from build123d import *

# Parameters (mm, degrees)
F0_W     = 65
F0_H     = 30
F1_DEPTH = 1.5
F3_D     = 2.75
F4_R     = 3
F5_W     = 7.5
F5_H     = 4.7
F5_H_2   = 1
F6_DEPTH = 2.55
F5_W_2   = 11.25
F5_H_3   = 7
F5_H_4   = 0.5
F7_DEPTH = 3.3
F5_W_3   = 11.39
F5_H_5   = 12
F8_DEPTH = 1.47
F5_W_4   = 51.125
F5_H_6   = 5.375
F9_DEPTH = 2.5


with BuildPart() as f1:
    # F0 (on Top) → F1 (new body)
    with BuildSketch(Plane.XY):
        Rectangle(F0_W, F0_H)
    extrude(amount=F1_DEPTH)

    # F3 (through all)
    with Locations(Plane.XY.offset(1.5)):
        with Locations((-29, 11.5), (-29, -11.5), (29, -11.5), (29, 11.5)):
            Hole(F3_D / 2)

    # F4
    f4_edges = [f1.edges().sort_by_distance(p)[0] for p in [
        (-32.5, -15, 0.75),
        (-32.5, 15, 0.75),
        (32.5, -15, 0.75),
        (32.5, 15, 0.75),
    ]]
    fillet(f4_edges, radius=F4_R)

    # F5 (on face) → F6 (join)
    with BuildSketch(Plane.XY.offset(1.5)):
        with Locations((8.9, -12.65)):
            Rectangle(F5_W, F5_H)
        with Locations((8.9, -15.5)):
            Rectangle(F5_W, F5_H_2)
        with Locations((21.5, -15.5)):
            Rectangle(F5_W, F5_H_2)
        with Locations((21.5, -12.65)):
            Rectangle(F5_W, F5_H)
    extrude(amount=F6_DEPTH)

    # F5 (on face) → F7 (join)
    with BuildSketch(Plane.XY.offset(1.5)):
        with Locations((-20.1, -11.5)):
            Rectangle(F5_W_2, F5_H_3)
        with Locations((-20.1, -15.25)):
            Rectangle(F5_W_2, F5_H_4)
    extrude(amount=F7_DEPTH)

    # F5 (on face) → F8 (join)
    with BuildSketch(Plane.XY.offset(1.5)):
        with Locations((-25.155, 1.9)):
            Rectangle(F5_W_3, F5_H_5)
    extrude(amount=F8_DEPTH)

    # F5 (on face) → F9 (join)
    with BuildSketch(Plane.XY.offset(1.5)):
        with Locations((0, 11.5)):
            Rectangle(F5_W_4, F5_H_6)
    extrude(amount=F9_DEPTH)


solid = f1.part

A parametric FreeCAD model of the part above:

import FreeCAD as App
import Part
import Sketcher


def edges_at(feature, points):
    """Names of the edges that pass closest to the given points."""
    edges = feature.Shape.Edges
    near = lambda p: min(range(len(edges)), key=lambda i: edges[i].distToShape(Part.Vertex(*p))[0])
    return sorted({f"Edge{near(p) + 1}" for p in points})

doc = App.newDocument("Part")
params = doc.addObject("Spreadsheet::Sheet", "Params")
for row, (alias, value) in enumerate([
    ("sketch1_width", "65 mm"),
    ("sketch1_height", "30 mm"),
    ("pad1_length", "1.5 mm"),
    ("sketch2_diameter", "2.75 mm"),
    ("hole_diameter", "2.75 mm"),
    ("fillet_radius", "3 mm"),
    ("sketch3_width", "7.5 mm"),
    ("sketch3_height", "5.7 mm"),
    ("pad2_length", "2.55 mm"),
    ("sketch4_height", "7.5 mm"),
    ("sketch4_width", "11.25 mm"),
    ("pad3_length", "3.3 mm"),
    ("sketch5_height", "12 mm"),
    ("sketch5_width", "11.39 mm"),
    ("pad4_length", "1.47 mm"),
    ("pad5_length", "2.5 mm"),
], start=1):
    params.set(f"A{row}", alias)
    params.set(f"B{row}", "=" + value)
    params.setAlias(f"B{row}", alias)

body = doc.addObject("PartDesign::Body", "Body")

# Sketch on XY plane
sketch1 = body.newObject("Sketcher::SketchObject", "Sketch")
sketch1.AttachmentSupport = (doc.getObject("XY_Plane"), [""])
sketch1.MapMode = "FlatFace"
sketch1.addGeometry([
    Part.LineSegment(App.Vector(-32, 15, 0), App.Vector(-32, -15, 0)),
    Part.LineSegment(App.Vector(-32, -15, 0), App.Vector(32, -15, 0)),
    Part.LineSegment(App.Vector(32, -15, 0), App.Vector(32, 15, 0)),
    Part.LineSegment(App.Vector(32, 15, 0), App.Vector(-32, 15, 0)),
], False)
sketch1.addConstraint([
    Sketcher.Constraint("Coincident", 0, 2, 1, 1),
    Sketcher.Constraint("Coincident", 1, 2, 2, 1),
    Sketcher.Constraint("Coincident", 2, 2, 3, 1),
    Sketcher.Constraint("Coincident", 3, 2, 0, 1),
    Sketcher.Constraint("Vertical", 0),
    Sketcher.Constraint("Horizontal", 1),
    Sketcher.Constraint("Vertical", 2),
    Sketcher.Constraint("Horizontal", 3),
    Sketcher.Constraint("Symmetric", 0, 2, 2, 2, -1, 1),
    Sketcher.Constraint("DistanceX", 1, 1, 1, 2, 65.0),
    Sketcher.Constraint("DistanceY", 0, 2, 0, 1, 30.0),
])
sketch1.setExpression("Constraints[9]", "Params.sketch1_width")
sketch1.setExpression("Constraints[10]", "Params.sketch1_height")
pad1 = body.newObject("PartDesign::Pad", "Pad")
pad1.Profile = sketch1
pad1.setExpression("Length", "Params.pad1_length")

# Sketch on XY plane
sketch2 = body.newObject("Sketcher::SketchObject", "Sketch001")
sketch2.AttachmentSupport = (doc.getObject("XY_Plane"), [""])
sketch2.MapMode = "FlatFace"
sketch2.AttachmentOffset = App.Placement(App.Vector(0, 0, 1.5), App.Rotation())
sketch2.addGeometry([
    Part.Circle(App.Vector(-29, 11.5, 0), App.Vector(0, 0, 1), 1.4),
    Part.Circle(App.Vector(-29, -11.5, 0), App.Vector(0, 0, 1), 1.4),
    Part.Circle(App.Vector(29, -11.5, 0), App.Vector(0, 0, 1), 1.4),
    Part.Circle(App.Vector(29, 11.5, 0), App.Vector(0, 0, 1), 1.4),
], False)
sketch2.addConstraint([
    Sketcher.Constraint("Equal", 0, 1),
    Sketcher.Constraint("Equal", 1, 2),
    Sketcher.Constraint("Equal", 2, 3),
    Sketcher.Constraint("Symmetric", 0, 3, 2, 3, -1, 1),
    Sketcher.Constraint("Symmetric", 1, 3, 3, 3, -1, 1),
    Sketcher.Constraint("Symmetric", 1, 3, 2, 3, -2),
    Sketcher.Constraint("Diameter", 0, 2.75),
    Sketcher.Constraint("DistanceX", 0, 3, -1, 1, 29.0),
    Sketcher.Constraint("DistanceY", 1, 3, 0, 3, 23.0),
])
sketch2.setExpression("Constraints[6]", "Params.sketch2_diameter")
doc.recompute()
hole = body.newObject("PartDesign::Hole", "Hole")
hole.Profile = sketch2
hole.ThreadType = "None"
hole.setExpression("Diameter", "Params.hole_diameter")
hole.DepthType = "ThroughAll"
doc.recompute()

fillet = body.newObject("PartDesign::Fillet", "Fillet")
fillet.Base = (hole, edges_at(hole, [
    (-32.5, -15, 0.75),
    (-32.5, 15, 0.75),
    (32.5, -15, 0.75),
    (32.5, 15, 0.75),
]))
fillet.setExpression("Radius", "Params.fillet_radius")

# Sketch on XY plane
sketch3 = body.newObject("Sketcher::SketchObject", "Sketch002")
sketch3.AttachmentSupport = (doc.getObject("XY_Plane"), [""])
sketch3.MapMode = "FlatFace"
sketch3.AttachmentOffset = App.Placement(App.Vector(0, 0, 1.5), App.Rotation())
sketch3.addGeometry([
    Part.LineSegment(App.Vector(5, -10, 0), App.Vector(5, -16, 0)),  # 0
    Part.LineSegment(App.Vector(5, -16, 0), App.Vector(13, -16, 0)),  # 1
    Part.LineSegment(App.Vector(13, -16, 0), App.Vector(13, -10, 0)),  # 2
    Part.LineSegment(App.Vector(13, -10, 0), App.Vector(5, -10, 0)),  # 3
    Part.LineSegment(App.Vector(18, -16, 0), App.Vector(25, -16, 0)),  # 4
    Part.LineSegment(App.Vector(25, -16, 0), App.Vector(25, -10, 0)),  # 5
    Part.LineSegment(App.Vector(25, -10, 0), App.Vector(18, -10, 0)),  # 6
    Part.LineSegment(App.Vector(18, -10, 0), App.Vector(18, -16, 0)),  # 7
], False)
sketch3.addConstraint([
    Sketcher.Constraint("Coincident", 0, 2, 1, 1),
    Sketcher.Constraint("Coincident", 1, 2, 2, 1),
    Sketcher.Constraint("Coincident", 2, 2, 3, 1),
    Sketcher.Constraint("Coincident", 3, 2, 0, 1),
    Sketcher.Constraint("Coincident", 4, 2, 5, 1),
    Sketcher.Constraint("Coincident", 5, 2, 6, 1),
    Sketcher.Constraint("Coincident", 6, 2, 7, 1),
    Sketcher.Constraint("Coincident", 7, 2, 4, 1),
    Sketcher.Constraint("Vertical", 0),
    Sketcher.Constraint("Horizontal", 1),
    Sketcher.Constraint("Vertical", 2),
    Sketcher.Constraint("Horizontal", 3),
    Sketcher.Constraint("Horizontal", 4),
    Sketcher.Constraint("Vertical", 5),
    Sketcher.Constraint("Horizontal", 6),
    Sketcher.Constraint("Vertical", 7),
    Sketcher.Constraint("Horizontal", 1, 2, 4, 2),
    Sketcher.Constraint("Horizontal", 3, 2, 5, 2),
    Sketcher.Constraint("Equal", 3, 4),
    Sketcher.Constraint("DistanceX", 1, 1, 1, 2, 7.5),
    Sketcher.Constraint("DistanceY", 0, 2, 0, 1, 5.7),
    Sketcher.Constraint("DistanceY", 0, 2, -1, 1, 16.0),
    Sketcher.Constraint("DistanceX", 1, 2, 4, 2, 12.6),
    Sketcher.Constraint("DistanceX", -1, 1, 0, 2, 5.15),
])
sketch3.setExpression("Constraints[19]", "Params.sketch3_width")
sketch3.setExpression("Constraints[20]", "Params.sketch3_height")
pad2 = body.newObject("PartDesign::Pad", "Pad001")
pad2.Profile = sketch3
pad2.setExpression("Length", "Params.pad2_length")

# Sketch on XY plane
sketch4 = body.newObject("Sketcher::SketchObject", "Sketch003")
sketch4.AttachmentSupport = (doc.getObject("XY_Plane"), [""])
sketch4.MapMode = "FlatFace"
sketch4.AttachmentOffset = App.Placement(App.Vector(0, 0, 1.5), App.Rotation())
sketch4.addGeometry([
    Part.LineSegment(App.Vector(-26, -8, 0), App.Vector(-26, -16, 0)),
    Part.LineSegment(App.Vector(-26, -16, 0), App.Vector(-14, -16, 0)),
    Part.LineSegment(App.Vector(-14, -16, 0), App.Vector(-14, -8, 0)),
    Part.LineSegment(App.Vector(-14, -8, 0), App.Vector(-26, -8, 0)),
], False)
sketch4.addConstraint([
    Sketcher.Constraint("Coincident", 0, 2, 1, 1),
    Sketcher.Constraint("Coincident", 1, 2, 2, 1),
    Sketcher.Constraint("Coincident", 2, 2, 3, 1),
    Sketcher.Constraint("Coincident", 3, 2, 0, 1),
    Sketcher.Constraint("Vertical", 0),
    Sketcher.Constraint("Horizontal", 1),
    Sketcher.Constraint("Vertical", 2),
    Sketcher.Constraint("Horizontal", 3),
    Sketcher.Constraint("DistanceY", 0, 2, 0, 1, 7.5),
    Sketcher.Constraint("DistanceY", 2, 2, -1, 1, 8.0),
    Sketcher.Constraint("DistanceX", 1, 1, 1, 2, 11.25),
    Sketcher.Constraint("DistanceX", 0, 2, -1, 1, 25.725),
])
sketch4.setExpression("Constraints[8]", "Params.sketch4_height")
sketch4.setExpression("Constraints[10]", "Params.sketch4_width")
pad3 = body.newObject("PartDesign::Pad", "Pad002")
pad3.Profile = sketch4
pad3.setExpression("Length", "Params.pad3_length")

# Sketch on XY plane
sketch5 = body.newObject("Sketcher::SketchObject", "Sketch004")
sketch5.AttachmentSupport = (doc.getObject("XY_Plane"), [""])
sketch5.MapMode = "FlatFace"
sketch5.AttachmentOffset = App.Placement(App.Vector(0, 0, 1.5), App.Rotation())
sketch5.addGeometry([
    Part.LineSegment(App.Vector(-31, 8, 0), App.Vector(-31, -4, 0)),
    Part.LineSegment(App.Vector(-31, -4, 0), App.Vector(-19, -4, 0)),
    Part.LineSegment(App.Vector(-19, -4, 0), App.Vector(-19, 8, 0)),
    Part.LineSegment(App.Vector(-19, 8, 0), App.Vector(-31, 8, 0)),
], False)
sketch5.addConstraint([
    Sketcher.Constraint("Coincident", 0, 2, 1, 1),
    Sketcher.Constraint("Coincident", 1, 2, 2, 1),
    Sketcher.Constraint("Coincident", 2, 2, 3, 1),
    Sketcher.Constraint("Coincident", 3, 2, 0, 1),
    Sketcher.Constraint("Vertical", 0),
    Sketcher.Constraint("Horizontal", 1),
    Sketcher.Constraint("Vertical", 2),
    Sketcher.Constraint("Horizontal", 3),
    Sketcher.Constraint("DistanceY", 0, 2, 0, 1, 12.0),
    Sketcher.Constraint("DistanceX", 1, 1, 1, 2, 11.39),
    Sketcher.Constraint("DistanceY", 0, 2, -1, 1, 4.1),
    Sketcher.Constraint("DistanceX", 0, 2, -1, 1, 30.85),
])
sketch5.setExpression("Constraints[8]", "Params.sketch5_height")
sketch5.setExpression("Constraints[9]", "Params.sketch5_width")
pad4 = body.newObject("PartDesign::Pad", "Pad003")
pad4.Profile = sketch5
pad4.setExpression("Length", "Params.pad4_length")

# Sketch on XY plane
sketch6 = body.newObject("Sketcher::SketchObject", "Sketch005")
sketch6.AttachmentSupport = (doc.getObject("XY_Plane"), [""])
sketch6.MapMode = "FlatFace"
sketch6.AttachmentOffset = App.Placement(App.Vector(0, 0, 1.5), App.Rotation())
sketch6.addGeometry([
    Part.LineSegment(App.Vector(-26, 14, 0), App.Vector(-26, 9, 0)),
    Part.LineSegment(App.Vector(-26, 9, 0), App.Vector(26, 9, 0)),
    Part.LineSegment(App.Vector(26, 9, 0), App.Vector(26, 14, 0)),
    Part.LineSegment(App.Vector(26, 14, 0), App.Vector(-26, 14, 0)),
], False)
sketch6.addConstraint([
    Sketcher.Constraint("Coincident", 0, 2, 1, 1),
    Sketcher.Constraint("Coincident", 1, 2, 2, 1),
    Sketcher.Constraint("Coincident", 2, 2, 3, 1),
    Sketcher.Constraint("Coincident", 3, 2, 0, 1),
    Sketcher.Constraint("Vertical", 0),
    Sketcher.Constraint("Horizontal", 1),
    Sketcher.Constraint("Vertical", 2),
    Sketcher.Constraint("Horizontal", 3),
    Sketcher.Constraint("DistanceX", 1, 1, 1, 2, 51.125),
    Sketcher.Constraint("DistanceY", 0, 2, 0, 1, 5.375),
    Sketcher.Constraint("DistanceX", 0, 2, -1, 1, 25.5625),
    Sketcher.Constraint("DistanceY", -1, 1, 0, 2, 8.8125),
])
pad5 = body.newObject("PartDesign::Pad", "Pad004")
pad5.Profile = sketch6
pad5.setExpression("Length", "Params.pad5_length")

doc.recompute()
